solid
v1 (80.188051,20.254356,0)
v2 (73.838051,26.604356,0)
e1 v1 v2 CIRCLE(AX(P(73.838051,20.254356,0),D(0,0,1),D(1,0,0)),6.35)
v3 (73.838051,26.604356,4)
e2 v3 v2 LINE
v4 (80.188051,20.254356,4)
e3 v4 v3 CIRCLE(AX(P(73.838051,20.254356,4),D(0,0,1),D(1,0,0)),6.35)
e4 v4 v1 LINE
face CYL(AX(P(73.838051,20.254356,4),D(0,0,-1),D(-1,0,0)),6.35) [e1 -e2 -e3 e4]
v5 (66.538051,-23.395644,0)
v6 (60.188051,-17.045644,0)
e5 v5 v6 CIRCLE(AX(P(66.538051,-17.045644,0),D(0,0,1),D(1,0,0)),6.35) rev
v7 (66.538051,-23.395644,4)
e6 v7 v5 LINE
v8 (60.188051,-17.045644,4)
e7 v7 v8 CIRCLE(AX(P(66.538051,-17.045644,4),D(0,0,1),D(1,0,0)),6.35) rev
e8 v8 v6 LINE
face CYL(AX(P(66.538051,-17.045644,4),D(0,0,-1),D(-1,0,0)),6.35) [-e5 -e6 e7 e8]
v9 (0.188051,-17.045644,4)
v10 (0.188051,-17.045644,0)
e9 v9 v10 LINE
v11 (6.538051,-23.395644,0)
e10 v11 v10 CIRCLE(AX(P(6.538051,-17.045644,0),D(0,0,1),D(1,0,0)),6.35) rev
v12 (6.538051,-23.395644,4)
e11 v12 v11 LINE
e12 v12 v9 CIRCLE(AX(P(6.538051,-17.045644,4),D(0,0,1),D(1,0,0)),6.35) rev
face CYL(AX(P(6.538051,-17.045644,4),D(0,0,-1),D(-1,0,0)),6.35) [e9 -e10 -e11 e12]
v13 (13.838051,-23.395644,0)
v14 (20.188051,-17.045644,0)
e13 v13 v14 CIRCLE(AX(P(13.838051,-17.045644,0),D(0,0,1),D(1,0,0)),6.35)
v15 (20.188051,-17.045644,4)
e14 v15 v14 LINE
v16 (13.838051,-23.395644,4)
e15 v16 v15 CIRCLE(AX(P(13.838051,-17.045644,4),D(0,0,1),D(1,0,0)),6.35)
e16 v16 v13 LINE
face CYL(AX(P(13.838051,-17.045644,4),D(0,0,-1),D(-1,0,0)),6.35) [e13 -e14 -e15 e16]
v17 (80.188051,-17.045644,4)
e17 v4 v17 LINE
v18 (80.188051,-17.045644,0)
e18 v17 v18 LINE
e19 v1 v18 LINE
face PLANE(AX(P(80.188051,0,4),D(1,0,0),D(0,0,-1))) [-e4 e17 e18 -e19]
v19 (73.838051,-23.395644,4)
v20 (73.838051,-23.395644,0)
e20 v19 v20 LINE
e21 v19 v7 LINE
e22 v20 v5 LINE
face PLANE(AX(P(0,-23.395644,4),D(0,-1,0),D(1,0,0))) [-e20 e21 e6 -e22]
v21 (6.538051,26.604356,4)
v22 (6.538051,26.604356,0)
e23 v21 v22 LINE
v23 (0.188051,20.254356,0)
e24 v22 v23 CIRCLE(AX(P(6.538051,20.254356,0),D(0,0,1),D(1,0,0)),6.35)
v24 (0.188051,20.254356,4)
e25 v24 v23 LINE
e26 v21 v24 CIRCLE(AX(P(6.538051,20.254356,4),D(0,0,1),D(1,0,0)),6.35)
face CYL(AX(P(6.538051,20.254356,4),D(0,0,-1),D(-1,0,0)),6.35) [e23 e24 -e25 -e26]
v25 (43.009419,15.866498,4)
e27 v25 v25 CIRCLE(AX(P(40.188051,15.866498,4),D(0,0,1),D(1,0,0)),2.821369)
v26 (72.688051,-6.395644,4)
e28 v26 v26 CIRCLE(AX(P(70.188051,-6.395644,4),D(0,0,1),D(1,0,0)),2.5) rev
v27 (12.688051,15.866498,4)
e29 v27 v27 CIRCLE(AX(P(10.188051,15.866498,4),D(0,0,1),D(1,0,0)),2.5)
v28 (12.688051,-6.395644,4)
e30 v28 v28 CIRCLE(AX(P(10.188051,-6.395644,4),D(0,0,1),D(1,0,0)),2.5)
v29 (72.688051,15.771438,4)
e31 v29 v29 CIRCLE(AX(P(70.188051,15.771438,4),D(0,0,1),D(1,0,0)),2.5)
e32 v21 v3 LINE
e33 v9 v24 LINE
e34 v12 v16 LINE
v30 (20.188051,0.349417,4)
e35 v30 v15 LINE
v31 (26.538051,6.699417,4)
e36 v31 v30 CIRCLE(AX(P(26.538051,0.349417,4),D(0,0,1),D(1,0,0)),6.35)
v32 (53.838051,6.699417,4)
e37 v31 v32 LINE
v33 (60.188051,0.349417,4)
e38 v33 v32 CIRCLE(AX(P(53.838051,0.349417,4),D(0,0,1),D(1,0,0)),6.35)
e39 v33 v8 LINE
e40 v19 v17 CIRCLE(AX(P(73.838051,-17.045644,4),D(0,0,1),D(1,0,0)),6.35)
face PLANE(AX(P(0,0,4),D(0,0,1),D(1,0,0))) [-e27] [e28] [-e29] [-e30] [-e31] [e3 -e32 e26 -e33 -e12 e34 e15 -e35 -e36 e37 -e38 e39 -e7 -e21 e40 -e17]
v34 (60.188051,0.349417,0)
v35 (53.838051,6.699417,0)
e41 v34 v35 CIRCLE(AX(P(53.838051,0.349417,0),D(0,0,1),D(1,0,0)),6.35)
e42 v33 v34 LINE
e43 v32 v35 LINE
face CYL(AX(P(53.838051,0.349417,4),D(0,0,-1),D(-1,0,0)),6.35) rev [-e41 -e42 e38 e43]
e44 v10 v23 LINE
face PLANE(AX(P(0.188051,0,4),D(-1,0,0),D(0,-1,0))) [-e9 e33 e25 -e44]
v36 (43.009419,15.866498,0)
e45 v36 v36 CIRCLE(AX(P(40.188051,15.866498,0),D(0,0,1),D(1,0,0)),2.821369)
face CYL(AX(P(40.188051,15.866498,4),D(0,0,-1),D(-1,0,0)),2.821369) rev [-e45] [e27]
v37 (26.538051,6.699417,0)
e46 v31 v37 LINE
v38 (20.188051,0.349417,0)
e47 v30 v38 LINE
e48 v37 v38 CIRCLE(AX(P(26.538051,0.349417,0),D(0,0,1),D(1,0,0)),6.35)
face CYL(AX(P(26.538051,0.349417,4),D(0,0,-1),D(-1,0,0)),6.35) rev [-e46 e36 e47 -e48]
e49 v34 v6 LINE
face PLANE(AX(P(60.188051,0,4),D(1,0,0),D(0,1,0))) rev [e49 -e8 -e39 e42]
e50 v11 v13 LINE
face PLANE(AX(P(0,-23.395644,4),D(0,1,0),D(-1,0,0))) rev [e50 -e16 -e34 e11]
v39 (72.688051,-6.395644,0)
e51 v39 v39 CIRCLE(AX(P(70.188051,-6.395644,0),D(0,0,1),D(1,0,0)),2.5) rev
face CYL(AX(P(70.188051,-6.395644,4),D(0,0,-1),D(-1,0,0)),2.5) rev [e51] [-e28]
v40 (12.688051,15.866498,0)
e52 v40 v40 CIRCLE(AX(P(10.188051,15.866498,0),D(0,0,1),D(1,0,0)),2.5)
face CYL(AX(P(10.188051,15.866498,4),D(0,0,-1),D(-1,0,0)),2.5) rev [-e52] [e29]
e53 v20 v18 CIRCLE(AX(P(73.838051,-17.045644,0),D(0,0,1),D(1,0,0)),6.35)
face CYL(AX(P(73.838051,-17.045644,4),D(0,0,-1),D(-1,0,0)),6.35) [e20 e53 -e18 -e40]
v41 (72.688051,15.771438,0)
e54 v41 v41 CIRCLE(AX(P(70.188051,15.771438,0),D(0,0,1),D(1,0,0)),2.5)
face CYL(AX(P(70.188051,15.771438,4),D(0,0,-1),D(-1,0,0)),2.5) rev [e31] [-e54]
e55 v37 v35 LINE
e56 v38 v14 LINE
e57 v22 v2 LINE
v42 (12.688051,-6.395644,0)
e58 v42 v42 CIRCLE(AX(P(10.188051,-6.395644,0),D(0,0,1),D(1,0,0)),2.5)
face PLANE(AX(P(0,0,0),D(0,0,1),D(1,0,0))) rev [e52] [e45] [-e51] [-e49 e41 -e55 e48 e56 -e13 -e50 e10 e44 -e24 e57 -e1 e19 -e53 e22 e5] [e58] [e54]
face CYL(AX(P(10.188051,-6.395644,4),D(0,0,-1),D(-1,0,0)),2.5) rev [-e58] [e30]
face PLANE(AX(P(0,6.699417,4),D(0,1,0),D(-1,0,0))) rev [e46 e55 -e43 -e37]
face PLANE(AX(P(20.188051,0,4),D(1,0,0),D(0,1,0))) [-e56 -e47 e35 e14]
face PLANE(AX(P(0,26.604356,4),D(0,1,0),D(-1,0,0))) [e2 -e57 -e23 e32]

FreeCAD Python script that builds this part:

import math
import FreeCAD as App
import Part
import Sketcher
Q = App.Units.Quantity

doc = App.newDocument("Part")
params = doc.addObject("Spreadsheet::Sheet", "Params")
for row, (alias, value) in enumerate([
    ("sketch1_diameter", "5 mm"),
    ("sketch1_radius", "6.35 mm"),
    ("sketch1_width", "27.3 mm"),
    ("sketch1_width2", "7.3 mm"),
    ("sketch1_height", "37.3 mm"),
    ("pad1_length", "4 mm"),
], start=1):
    params.set(f"A{row}", alias)
    params.set(f"B{row}", "=" + value)
    params.setAlias(f"B{row}", alias)

body = doc.addObject("PartDesign::Body", "Body")

sketch1 = doc.addObject("Sketcher::SketchObject", "Sketch")
body.addObject(sketch1)
sketch1.AttachmentSupport = (doc.XY_Plane, [""])
sketch1.MapMode = "FlatFace"
sketch1.addGeometry(Part.LineSegment(App.Vector(26.5, 6.7, 0), App.Vector(53.8, 6.7, 0)), False)
sketch1.addGeometry(Part.ArcOfCircle(Part.Circle(App.Vector(53.8, 0.3, 0), App.Vector(0, 0, 1), 6.4), math.radians(0), math.radians(90)), False)
sketch1.addGeometry(Part.LineSegment(App.Vector(60.2, 0.3, 0), App.Vector(60.2, -17, 0)), False)
sketch1.addGeometry(Part.ArcOfCircle(Part.Circle(App.Vector(66.5, -17, 0), App.Vector(0, 0, 1), 6.3), math.radians(180), math.radians(270)), False)
sketch1.addGeometry(Part.LineSegment(App.Vector(66.5, -23.4, 0), App.Vector(73.8, -23.4, 0)), False)
sketch1.addGeometry(Part.ArcOfCircle(Part.Circle(App.Vector(73.8, -17, 0), App.Vector(0, 0, 1), 6.4), math.radians(-90), math.radians(0)), False)
sketch1.addGeometry(Part.LineSegment(App.Vector(80.2, -17, 0), App.Vector(80.2, 20.3, 0)), False)
sketch1.addGeometry(Part.ArcOfCircle(Part.Circle(App.Vector(73.8, 20.3, 0), App.Vector(0, 0, 1), 6.3), math.radians(0), math.radians(90)), False)
sketch1.addGeometry(Part.LineSegment(App.Vector(73.8, 26.6, 0), App.Vector(6.5, 26.6, 0)), False)
sketch1.addGeometry(Part.ArcOfCircle(Part.Circle(App.Vector(6.5, 20.3, 0), App.Vector(0, 0, 1), 6.3), math.radians(90), math.radians(180)), False)
sketch1.addGeometry(Part.LineSegment(App.Vector(0.2, 20.3, 0), App.Vector(0.2, -17, 0)), False)
sketch1.addGeometry(Part.ArcOfCircle(Part.Circle(App.Vector(6.5, -17, 0), App.Vector(0, 0, 1), 6.3), math.radians(180), math.radians(270)), False)
sketch1.addGeometry(Part.LineSegment(App.Vector(6.5, -23.4, 0), App.Vector(13.8, -23.4, 0)), False)
sketch1.addGeometry(Part.ArcOfCircle(Part.Circle(App.Vector(13.8, -17, 0), App.Vector(0, 0, 1), 6.4), math.radians(-90), math.radians(0)), False)
sketch1.addGeometry(Part.LineSegment(App.Vector(20.2, -17, 0), App.Vector(20.2, 0.3, 0)), False)
sketch1.addGeometry(Part.ArcOfCircle(Part.Circle(App.Vector(26.5, 0.3, 0), App.Vector(0, 0, 1), 6.3), math.radians(90), math.radians(180)), False)
sketch1.addGeometry(Part.Circle(App.Vector(10.2, -6.4, 0), App.Vector(0, 0, 1), 2.5), False)
sketch1.addGeometry(Part.Circle(App.Vector(70.2, -6.4, 0), App.Vector(0, 0, 1), 2.5), False)
sketch1.addGeometry(Part.Circle(App.Vector(10.2, 15.9, 0), App.Vector(0, 0, 1), 2.5), False)
sketch1.addGeometry(Part.Circle(App.Vector(40.2, 15.9, 0), App.Vector(0, 0, 1), 2.8), False)
sketch1.addGeometry(Part.Circle(App.Vector(70.2, 15.8, 0), App.Vector(0, 0, 1), 2.5), False)
sketch1.addConstraint(Sketcher.Constraint("Tangent", 0, 2, 1, 2))
sketch1.addConstraint(Sketcher.Constraint("Tangent", 1, 1, 2, 1))
sketch1.addConstraint(Sketcher.Constraint("Tangent", 2, 2, 3, 1))
sketch1.addConstraint(Sketcher.Constraint("Tangent", 3, 2, 4, 1))
sketch1.addConstraint(Sketcher.Constraint("Tangent", 4, 2, 5, 1))
sketch1.addConstraint(Sketcher.Constraint("Tangent", 5, 2, 6, 1))
sketch1.addConstraint(Sketcher.Constraint("Tangent", 6, 2, 7, 1))
sketch1.addConstraint(Sketcher.Constraint("Tangent", 7, 2, 8, 1))
sketch1.addConstraint(Sketcher.Constraint("Tangent", 8, 2, 9, 1))
sketch1.addConstraint(Sketcher.Constraint("Tangent", 9, 2, 10, 1))
sketch1.addConstraint(Sketcher.Constraint("Tangent", 10, 2, 11, 1))
sketch1.addConstraint(Sketcher.Constraint("Tangent", 11, 2, 12, 1))
sketch1.addConstraint(Sketcher.Constraint("Tangent", 12, 2, 13, 1))
sketch1.addConstraint(Sketcher.Constraint("Tangent", 13, 2, 14, 1))
sketch1.addConstraint(Sketcher.Constraint("Tangent", 14, 2, 15, 2))
sketch1.addConstraint(Sketcher.Constraint("Tangent", 15, 1, 0, 1))
sketch1.addConstraint(Sketcher.Constraint("Horizontal", 0))
sketch1.addConstraint(Sketcher.Constraint("Vertical", 2))
sketch1.addConstraint(Sketcher.Constraint("Horizontal", 4))
sketch1.addConstraint(Sketcher.Constraint("Vertical", 6))
sketch1.addConstraint(Sketcher.Constraint("Horizontal", 8))
sketch1.addConstraint(Sketcher.Constraint("Vertical", 10))
sketch1.addConstraint(Sketcher.Constraint("Horizontal", 12))
sketch1.addConstraint(Sketcher.Constraint("Vertical", 14))
sketch1.addConstraint(Sketcher.Constraint("Equal", 1, 3))
sketch1.addConstraint(Sketcher.Constraint("Equal", 3, 5))
sketch1.addConstraint(Sketcher.Constraint("Equal", 5, 7))
sketch1.addConstraint(Sketcher.Constraint("Equal", 7, 9))
sketch1.addConstraint(Sketcher.Constraint("Equal", 9, 11))
sketch1.addConstraint(Sketcher.Constraint("Equal", 11, 13))
sketch1.addConstraint(Sketcher.Constraint("Equal", 13, 15))
sketch1.addConstraint(Sketcher.Constraint("Equal", 16, 17))
sketch1.addConstraint(Sketcher.Constraint("Equal", 17, 18))
sketch1.addConstraint(Sketcher.Constraint("Equal", 18, 20))
sketch1.addConstraint(Sketcher.Constraint("Horizontal", 5, 3, 11, 3))
sketch1.addConstraint(Sketcher.Constraint("Horizontal", 16, 3, 17, 3))
sketch1.addConstraint(Sketcher.Constraint("Horizontal", 18, 3, 19, 3))
sketch1.addConstraint(Sketcher.Constraint("Vertical", 16, 3, 18, 3))
sketch1.addConstraint(Sketcher.Constraint("Vertical", 17, 3, 20, 3))
sketch1.addConstraint(Sketcher.Constraint("Equal", 4, 12))
sketch1.addConstraint(Sketcher.Constraint("Diameter", 16, Q("5 mm")))
sketch1.addConstraint(Sketcher.Constraint("Radius", 1, Q("6.35 mm")))
sketch1.addConstraint(Sketcher.Constraint("DistanceX", 0, 1, 0, 2, Q("27.3 mm")))
sketch1.addConstraint(Sketcher.Constraint("DistanceX", 4, 1, 4, 2, Q("7.3 mm")))
sketch1.addConstraint(Sketcher.Constraint("DistanceY", 6, 1, 6, 2, Q("37.3 mm")))
sketch1.addConstraint(Sketcher.Constraint("DistanceX", 18, 3, 19, 3, Q("30 mm")))
sketch1.addConstraint(Sketcher.Constraint("DistanceX", 19, 3, 20, 3, Q("30 mm")))
sketch1.addConstraint(Sketcher.Constraint("DistanceX", 1, 1, 17, 3, Q("10 mm")))
sketch1.addConstraint(Sketcher.Constraint("DistanceY", 3, 2, 17, 3, Q("17 mm")))
sketch1.addConstraint(Sketcher.Constraint("Diameter", 19, Q("5.642737 mm")))
sketch1.addConstraint(Sketcher.Constraint("DistanceY", 2, 2, 2, 1, Q("17.395061 mm")))
sketch1.addConstraint(Sketcher.Constraint("DistanceY", -1, 1, 18, 3, Q("15.866498 mm")))
sketch1.addConstraint(Sketcher.Constraint("DistanceX", -1, 1, 1, 3, Q("53.838051 mm")))
sketch1.addConstraint(Sketcher.Constraint("DistanceY", 15, 3, 18, 3, Q("15.517081 mm")))
sketch1.addConstraint(Sketcher.Constraint("DistanceY", 20, 3, 7, 3, Q("4.482919 mm")))
sketch1.setExpression("Constraints[40]", "Params.sketch1_diameter")
sketch1.setExpression("Constraints[41]", "Params.sketch1_radius")
sketch1.setExpression("Constraints[42]", "Params.sketch1_width")
sketch1.setExpression("Constraints[43]", "Params.sketch1_width2")
sketch1.setExpression("Constraints[44]", "Params.sketch1_height")
pad1 = doc.addObject("PartDesign::Pad", "Pad")
body.addObject(pad1)
pad1.Profile = sketch1
pad1.setExpression("Length", "Params.pad1_length")

doc.recompute()
